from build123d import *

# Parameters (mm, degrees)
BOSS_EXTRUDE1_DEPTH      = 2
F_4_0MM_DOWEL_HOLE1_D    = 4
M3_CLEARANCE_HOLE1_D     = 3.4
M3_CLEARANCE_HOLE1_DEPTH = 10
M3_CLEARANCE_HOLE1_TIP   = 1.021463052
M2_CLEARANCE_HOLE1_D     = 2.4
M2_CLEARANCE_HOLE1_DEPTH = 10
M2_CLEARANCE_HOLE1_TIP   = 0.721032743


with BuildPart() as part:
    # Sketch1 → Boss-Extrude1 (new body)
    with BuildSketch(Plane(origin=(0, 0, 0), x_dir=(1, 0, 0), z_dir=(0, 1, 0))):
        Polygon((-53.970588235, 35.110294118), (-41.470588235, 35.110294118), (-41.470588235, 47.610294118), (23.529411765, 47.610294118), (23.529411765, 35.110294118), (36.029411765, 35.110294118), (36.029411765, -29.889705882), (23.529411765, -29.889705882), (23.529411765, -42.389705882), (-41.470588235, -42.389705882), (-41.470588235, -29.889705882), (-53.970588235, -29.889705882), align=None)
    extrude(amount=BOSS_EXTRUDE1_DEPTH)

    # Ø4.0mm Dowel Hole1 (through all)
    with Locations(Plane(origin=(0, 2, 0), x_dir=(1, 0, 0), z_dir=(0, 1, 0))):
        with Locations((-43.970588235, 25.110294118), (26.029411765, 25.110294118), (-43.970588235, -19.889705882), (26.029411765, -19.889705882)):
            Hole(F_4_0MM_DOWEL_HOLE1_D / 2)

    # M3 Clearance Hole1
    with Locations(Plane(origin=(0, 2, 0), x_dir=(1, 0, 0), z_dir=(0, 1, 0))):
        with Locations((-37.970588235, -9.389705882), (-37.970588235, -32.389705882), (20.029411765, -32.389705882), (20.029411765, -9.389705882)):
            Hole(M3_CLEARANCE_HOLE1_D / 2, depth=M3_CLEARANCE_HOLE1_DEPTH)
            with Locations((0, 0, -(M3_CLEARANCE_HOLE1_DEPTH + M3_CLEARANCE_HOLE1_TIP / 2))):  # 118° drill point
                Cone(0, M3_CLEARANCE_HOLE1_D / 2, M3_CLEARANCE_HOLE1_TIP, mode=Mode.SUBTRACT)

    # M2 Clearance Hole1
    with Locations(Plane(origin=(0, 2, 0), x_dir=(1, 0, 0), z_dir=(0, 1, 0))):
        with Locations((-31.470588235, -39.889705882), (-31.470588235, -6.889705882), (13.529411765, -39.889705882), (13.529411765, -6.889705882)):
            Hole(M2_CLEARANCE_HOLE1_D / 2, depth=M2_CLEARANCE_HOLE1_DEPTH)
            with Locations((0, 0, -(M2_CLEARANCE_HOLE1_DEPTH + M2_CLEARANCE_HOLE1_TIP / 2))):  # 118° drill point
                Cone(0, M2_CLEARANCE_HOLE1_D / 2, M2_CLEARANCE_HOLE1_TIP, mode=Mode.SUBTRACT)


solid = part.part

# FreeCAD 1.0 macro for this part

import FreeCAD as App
import Part
import Sketcher

V = App.Vector
Q = App.Units.Quantity


def add_polygon(sketch, points):
    """Adds a closed chain of lines whose ends are joined by coincident constraints."""
    first, n = sketch.GeometryCount, len(points)
    for a, b in zip(points, points[1:] + points[:1]):
        sketch.addGeometry(Part.LineSegment(App.Vector(*a, 0), App.Vector(*b, 0)), False)
    for i in range(n):
        sketch.addConstraint(Sketcher.Constraint("Coincident", first + i, 2, first + (i + 1) % n, 1))

doc = App.newDocument("Part")
params = doc.addObject("Spreadsheet::Sheet", "Params")
for row, (alias, value) in enumerate([
    ("sketch1_width", "65 mm"),
    ("sketch1_width2", "12.5 mm"),
    ("pad1_length", "2 mm"),
    ("sketch2_diameter", "4 mm"),
    ("hole_diameter", "4 mm"),
    ("sketch3_diameter", "3.4 mm"),
    ("hole2_diameter", "3.4 mm"),
    ("hole2_depth", "10 mm"),
    ("sketch4_diameter", "2.4 mm"),
    ("hole3_diameter", "2.4 mm"),
    ("hole3_depth", "10 mm"),
], start=1):
    params.set(f"A{row}", alias)
    params.set(f"B{row}", "=" + value)
    params.setAlias(f"B{row}", alias)

body = doc.addObject("PartDesign::Body", "Body")

# Sketch on XZ plane
sketch1 = body.newObject("Sketcher::SketchObject", "Sketch")
sketch1.AttachmentSupport = (doc.getObject("XZ_Plane"), [""])
sketch1.MapMode = "FlatFace"
add_polygon(sketch1, [(-41.470588, -35.110294), (-53.970588, -35.110294), (-53.970588, 29.889706), (-41.470588, 29.889706), (-41.470588, 42.389706), (23.529412, 42.389706), (23.529412, 29.889706), (36.029412, 29.889706), (36.029412, -35.110294), (23.529412, -35.110294), (23.529412, -47.610294), (-41.470588, -47.610294)])  # lines 0-11
sketch1.addConstraint([
    Sketcher.Constraint("Horizontal", 0),
    Sketcher.Constraint("Vertical", 1),
    Sketcher.Constraint("Horizontal", 2),
    Sketcher.Constraint("Vertical", 3),
    Sketcher.Constraint("Horizontal", 4),
    Sketcher.Constraint("Vertical", 5),
    Sketcher.Constraint("Horizontal", 6),
    Sketcher.Constraint("Vertical", 7),
    Sketcher.Constraint("Horizontal", 8),
    Sketcher.Constraint("Vertical", 9),
    Sketcher.Constraint("Horizontal", 10),
    Sketcher.Constraint("Vertical", 11),
    Sketcher.Constraint("Horizontal", 2, 2, 5, 2),
    Sketcher.Constraint("Horizontal", 0, 2, 7, 2),
    Sketcher.Constraint("Vertical", 5, 2, 8, 2),
    Sketcher.Constraint("Vertical", 3, 2, 10, 2),
    Sketcher.Constraint("Equal", 2, 6),
    Sketcher.Constraint("Equal", 10, 1),
    Sketcher.Constraint("Equal", 8, 3),
    Sketcher.Constraint("Equal", 5, 9),
    Sketcher.Constraint("DistanceX", 4, 1, 4, 2, Q("65 mm")),
    Sketcher.Constraint("DistanceX", 0, 2, 0, 1, Q("12.5 mm")),
    Sketcher.Constraint("DistanceX", 0, 2, -1, 1, Q("53.970588 mm")),
    Sketcher.Constraint("DistanceY", 0, 2, -1, 1, Q("35.110294 mm")),
])
sketch1.setExpression("Constraints[32]", "Params.sketch1_width")
sketch1.setExpression("Constraints[33]", "Params.sketch1_width2")
pad1 = body.newObject("PartDesign::Pad", "Pad")
pad1.Profile = sketch1
pad1.setExpression("Length", "Params.pad1_length")
pad1.Reversed = True

# Sketch on XZ plane
sketch2 = body.newObject("Sketcher::SketchObject", "Sketch001")
sketch2.AttachmentSupport = (doc.getObject("XZ_Plane"), [""])
sketch2.MapMode = "FlatFace"
sketch2.AttachmentOffset = App.Placement(V(0, 0, -2), App.Rotation())
sketch2.addGeometry([
    Part.Circle(V(-43.970588, -25.110294, 0), V(0, 0, 1), 2),
    Part.Circle(V(26.029412, -25.110294, 0), V(0, 0, 1), 2),
    Part.Circle(V(-43.970588, 19.889706, 0), V(0, 0, 1), 2),
    Part.Circle(V(26.029412, 19.889706, 0), V(0, 0, 1), 2),
], False)
sketch2.addConstraint([
    Sketcher.Constraint("Equal", 0, 1),
    Sketcher.Constraint("Equal", 1, 2),
    Sketcher.Constraint("Equal", 2, 3),
    Sketcher.Constraint("Horizontal", 0, 3, 1, 3),
    Sketcher.Constraint("Horizontal", 2, 3, 3, 3),
    Sketcher.Constraint("Vertical", 0, 3, 2, 3),
    Sketcher.Constraint("Vertical", 1, 3, 3, 3),
    Sketcher.Constraint("Diameter", 0, Q("4 mm")),
    Sketcher.Constraint("DistanceX", 0, 3, 1, 3, Q("70 mm")),
    Sketcher.Constraint("DistanceY", 0, 3, 2, 3, Q("45 mm")),
    Sketcher.Constraint("DistanceX", 0, 3, -1, 1, Q("43.970588 mm")),
    Sketcher.Constraint("DistanceY", 0, 3, -1, 1, Q("25.110294 mm")),
])
sketch2.setExpression("Constraints[7]", "Params.sketch2_diameter")
doc.recompute()
hole = body.newObject("PartDesign::Hole", "Hole")
hole.Profile = sketch2
hole.ThreadType = "None"
hole.setExpression("Diameter", "Params.hole_diameter")
hole.DepthType = "ThroughAll"
hole.Reversed = True

# Sketch on XZ plane
sketch3 = body.newObject("Sketcher::SketchObject", "Sketch002")
sketch3.AttachmentSupport = (doc.getObject("XZ_Plane"), [""])
sketch3.MapMode = "FlatFace"
sketch3.AttachmentOffset = App.Placement(V(0, 0, -2), App.Rotation())
sketch3.addGeometry([
    Part.Circle(V(-37.970588, 9.389706, 0), V(0, 0, 1), 1.7),
    Part.Circle(V(-37.970588, 32.389706, 0), V(0, 0, 1), 1.7),
    Part.Circle(V(20.029412, 32.389706, 0), V(0, 0, 1), 1.7),
    Part.Circle(V(20.029412, 9.389706, 0), V(0, 0, 1), 1.7),
], False)
sketch3.addConstraint([
    Sketcher.Constraint("Equal", 0, 1),
    Sketcher.Constraint("Equal", 1, 2),
    Sketcher.Constraint("Equal", 2, 3),
    Sketcher.Constraint("Horizontal", 1, 3, 2, 3),
    Sketcher.Constraint("Horizontal", 0, 3, 3, 3),
    Sketcher.Constraint("Vertical", 0, 3, 1, 3),
    Sketcher.Constraint("Vertical", 2, 3, 3, 3),
    Sketcher.Constraint("Diameter", 0, Q("3.4 mm")),
    Sketcher.Constraint("DistanceY", 0, 3, 1, 3, Q("23 mm")),
    Sketcher.Constraint("DistanceX", 1, 3, 2, 3, Q("58 mm")),
    Sketcher.Constraint("DistanceX", 0, 3, -1, 1, Q("37.970588 mm")),
    Sketcher.Constraint("DistanceY", -1, 1, 0, 3, Q("9.389706 mm")),
])
sketch3.setExpression("Constraints[7]", "Params.sketch3_diameter")
doc.recompute()
hole2 = body.newObject("PartDesign::Hole", "Hole001")
hole2.Profile = sketch3
hole2.ThreadType = "None"
hole2.setExpression("Diameter", "Params.hole2_diameter")
hole2.DepthType = "Dimension"
hole2.setExpression("Depth", "Params.hole2_depth")
hole2.DrillPoint = "Angled"
hole2.DrillPointAngle = 118
hole2.Reversed = True

# Sketch on XZ plane
sketch4 = body.newObject("Sketcher::SketchObject", "Sketch003")
sketch4.AttachmentSupport = (doc.getObject("XZ_Plane"), [""])
sketch4.MapMode = "FlatFace"
sketch4.AttachmentOffset = App.Placement(V(0, 0, -2), App.Rotation())
sketch4.addGeometry([
    Part.Circle(V(-31.470588, 39.889706, 0), V(0, 0, 1), 1.2),
    Part.Circle(V(-31.470588, 6.889706, 0), V(0, 0, 1), 1.2),
    Part.Circle(V(13.529412, 39.889706, 0), V(0, 0, 1), 1.2),
    Part.Circle(V(13.529412, 6.889706, 0), V(0, 0, 1), 1.2),
], False)
sketch4.addConstraint([
    Sketcher.Constraint("Equal", 0, 1),
    Sketcher.Constraint("Equal", 1, 2),
    Sketcher.Constraint("Equal", 2, 3),
    Sketcher.Constraint("Horizontal", 0, 3, 2, 3),
    Sketcher.Constraint("Horizontal", 1, 3, 3, 3),
    Sketcher.Constraint("Vertical", 0, 3, 1, 3),
    Sketcher.Constraint("Vertical", 2, 3, 3, 3),
    Sketcher.Constraint("Diameter", 0, Q("2.4 mm")),
    Sketcher.Constraint("DistanceY", 1, 3, 0, 3, Q("33 mm")),
    Sketcher.Constraint("DistanceX", 0, 3, 2, 3, Q("45 mm")),
    Sketcher.Constraint("DistanceX", 0, 3, -1, 1, Q("31.470588 mm")),
    Sketcher.Constraint("DistanceY", -1, 1, 0, 3, Q("39.889706 mm")),
])
sketch4.setExpression("Constraints[7]", "Params.sketch4_diameter")
doc.recompute()
hole3 = body.newObject("PartDesign::Hole", "Hole002")
hole3.Profile = sketch4
hole3.ThreadType = "None"
hole3.setExpression("Diameter", "Params.hole3_diameter")
hole3.DepthType = "Dimension"
hole3.setExpression("Depth", "Params.hole3_depth")
hole3.DrillPoint = "Angled"
hole3.DrillPointAngle = 118
hole3.Reversed = True

doc.recompute()
